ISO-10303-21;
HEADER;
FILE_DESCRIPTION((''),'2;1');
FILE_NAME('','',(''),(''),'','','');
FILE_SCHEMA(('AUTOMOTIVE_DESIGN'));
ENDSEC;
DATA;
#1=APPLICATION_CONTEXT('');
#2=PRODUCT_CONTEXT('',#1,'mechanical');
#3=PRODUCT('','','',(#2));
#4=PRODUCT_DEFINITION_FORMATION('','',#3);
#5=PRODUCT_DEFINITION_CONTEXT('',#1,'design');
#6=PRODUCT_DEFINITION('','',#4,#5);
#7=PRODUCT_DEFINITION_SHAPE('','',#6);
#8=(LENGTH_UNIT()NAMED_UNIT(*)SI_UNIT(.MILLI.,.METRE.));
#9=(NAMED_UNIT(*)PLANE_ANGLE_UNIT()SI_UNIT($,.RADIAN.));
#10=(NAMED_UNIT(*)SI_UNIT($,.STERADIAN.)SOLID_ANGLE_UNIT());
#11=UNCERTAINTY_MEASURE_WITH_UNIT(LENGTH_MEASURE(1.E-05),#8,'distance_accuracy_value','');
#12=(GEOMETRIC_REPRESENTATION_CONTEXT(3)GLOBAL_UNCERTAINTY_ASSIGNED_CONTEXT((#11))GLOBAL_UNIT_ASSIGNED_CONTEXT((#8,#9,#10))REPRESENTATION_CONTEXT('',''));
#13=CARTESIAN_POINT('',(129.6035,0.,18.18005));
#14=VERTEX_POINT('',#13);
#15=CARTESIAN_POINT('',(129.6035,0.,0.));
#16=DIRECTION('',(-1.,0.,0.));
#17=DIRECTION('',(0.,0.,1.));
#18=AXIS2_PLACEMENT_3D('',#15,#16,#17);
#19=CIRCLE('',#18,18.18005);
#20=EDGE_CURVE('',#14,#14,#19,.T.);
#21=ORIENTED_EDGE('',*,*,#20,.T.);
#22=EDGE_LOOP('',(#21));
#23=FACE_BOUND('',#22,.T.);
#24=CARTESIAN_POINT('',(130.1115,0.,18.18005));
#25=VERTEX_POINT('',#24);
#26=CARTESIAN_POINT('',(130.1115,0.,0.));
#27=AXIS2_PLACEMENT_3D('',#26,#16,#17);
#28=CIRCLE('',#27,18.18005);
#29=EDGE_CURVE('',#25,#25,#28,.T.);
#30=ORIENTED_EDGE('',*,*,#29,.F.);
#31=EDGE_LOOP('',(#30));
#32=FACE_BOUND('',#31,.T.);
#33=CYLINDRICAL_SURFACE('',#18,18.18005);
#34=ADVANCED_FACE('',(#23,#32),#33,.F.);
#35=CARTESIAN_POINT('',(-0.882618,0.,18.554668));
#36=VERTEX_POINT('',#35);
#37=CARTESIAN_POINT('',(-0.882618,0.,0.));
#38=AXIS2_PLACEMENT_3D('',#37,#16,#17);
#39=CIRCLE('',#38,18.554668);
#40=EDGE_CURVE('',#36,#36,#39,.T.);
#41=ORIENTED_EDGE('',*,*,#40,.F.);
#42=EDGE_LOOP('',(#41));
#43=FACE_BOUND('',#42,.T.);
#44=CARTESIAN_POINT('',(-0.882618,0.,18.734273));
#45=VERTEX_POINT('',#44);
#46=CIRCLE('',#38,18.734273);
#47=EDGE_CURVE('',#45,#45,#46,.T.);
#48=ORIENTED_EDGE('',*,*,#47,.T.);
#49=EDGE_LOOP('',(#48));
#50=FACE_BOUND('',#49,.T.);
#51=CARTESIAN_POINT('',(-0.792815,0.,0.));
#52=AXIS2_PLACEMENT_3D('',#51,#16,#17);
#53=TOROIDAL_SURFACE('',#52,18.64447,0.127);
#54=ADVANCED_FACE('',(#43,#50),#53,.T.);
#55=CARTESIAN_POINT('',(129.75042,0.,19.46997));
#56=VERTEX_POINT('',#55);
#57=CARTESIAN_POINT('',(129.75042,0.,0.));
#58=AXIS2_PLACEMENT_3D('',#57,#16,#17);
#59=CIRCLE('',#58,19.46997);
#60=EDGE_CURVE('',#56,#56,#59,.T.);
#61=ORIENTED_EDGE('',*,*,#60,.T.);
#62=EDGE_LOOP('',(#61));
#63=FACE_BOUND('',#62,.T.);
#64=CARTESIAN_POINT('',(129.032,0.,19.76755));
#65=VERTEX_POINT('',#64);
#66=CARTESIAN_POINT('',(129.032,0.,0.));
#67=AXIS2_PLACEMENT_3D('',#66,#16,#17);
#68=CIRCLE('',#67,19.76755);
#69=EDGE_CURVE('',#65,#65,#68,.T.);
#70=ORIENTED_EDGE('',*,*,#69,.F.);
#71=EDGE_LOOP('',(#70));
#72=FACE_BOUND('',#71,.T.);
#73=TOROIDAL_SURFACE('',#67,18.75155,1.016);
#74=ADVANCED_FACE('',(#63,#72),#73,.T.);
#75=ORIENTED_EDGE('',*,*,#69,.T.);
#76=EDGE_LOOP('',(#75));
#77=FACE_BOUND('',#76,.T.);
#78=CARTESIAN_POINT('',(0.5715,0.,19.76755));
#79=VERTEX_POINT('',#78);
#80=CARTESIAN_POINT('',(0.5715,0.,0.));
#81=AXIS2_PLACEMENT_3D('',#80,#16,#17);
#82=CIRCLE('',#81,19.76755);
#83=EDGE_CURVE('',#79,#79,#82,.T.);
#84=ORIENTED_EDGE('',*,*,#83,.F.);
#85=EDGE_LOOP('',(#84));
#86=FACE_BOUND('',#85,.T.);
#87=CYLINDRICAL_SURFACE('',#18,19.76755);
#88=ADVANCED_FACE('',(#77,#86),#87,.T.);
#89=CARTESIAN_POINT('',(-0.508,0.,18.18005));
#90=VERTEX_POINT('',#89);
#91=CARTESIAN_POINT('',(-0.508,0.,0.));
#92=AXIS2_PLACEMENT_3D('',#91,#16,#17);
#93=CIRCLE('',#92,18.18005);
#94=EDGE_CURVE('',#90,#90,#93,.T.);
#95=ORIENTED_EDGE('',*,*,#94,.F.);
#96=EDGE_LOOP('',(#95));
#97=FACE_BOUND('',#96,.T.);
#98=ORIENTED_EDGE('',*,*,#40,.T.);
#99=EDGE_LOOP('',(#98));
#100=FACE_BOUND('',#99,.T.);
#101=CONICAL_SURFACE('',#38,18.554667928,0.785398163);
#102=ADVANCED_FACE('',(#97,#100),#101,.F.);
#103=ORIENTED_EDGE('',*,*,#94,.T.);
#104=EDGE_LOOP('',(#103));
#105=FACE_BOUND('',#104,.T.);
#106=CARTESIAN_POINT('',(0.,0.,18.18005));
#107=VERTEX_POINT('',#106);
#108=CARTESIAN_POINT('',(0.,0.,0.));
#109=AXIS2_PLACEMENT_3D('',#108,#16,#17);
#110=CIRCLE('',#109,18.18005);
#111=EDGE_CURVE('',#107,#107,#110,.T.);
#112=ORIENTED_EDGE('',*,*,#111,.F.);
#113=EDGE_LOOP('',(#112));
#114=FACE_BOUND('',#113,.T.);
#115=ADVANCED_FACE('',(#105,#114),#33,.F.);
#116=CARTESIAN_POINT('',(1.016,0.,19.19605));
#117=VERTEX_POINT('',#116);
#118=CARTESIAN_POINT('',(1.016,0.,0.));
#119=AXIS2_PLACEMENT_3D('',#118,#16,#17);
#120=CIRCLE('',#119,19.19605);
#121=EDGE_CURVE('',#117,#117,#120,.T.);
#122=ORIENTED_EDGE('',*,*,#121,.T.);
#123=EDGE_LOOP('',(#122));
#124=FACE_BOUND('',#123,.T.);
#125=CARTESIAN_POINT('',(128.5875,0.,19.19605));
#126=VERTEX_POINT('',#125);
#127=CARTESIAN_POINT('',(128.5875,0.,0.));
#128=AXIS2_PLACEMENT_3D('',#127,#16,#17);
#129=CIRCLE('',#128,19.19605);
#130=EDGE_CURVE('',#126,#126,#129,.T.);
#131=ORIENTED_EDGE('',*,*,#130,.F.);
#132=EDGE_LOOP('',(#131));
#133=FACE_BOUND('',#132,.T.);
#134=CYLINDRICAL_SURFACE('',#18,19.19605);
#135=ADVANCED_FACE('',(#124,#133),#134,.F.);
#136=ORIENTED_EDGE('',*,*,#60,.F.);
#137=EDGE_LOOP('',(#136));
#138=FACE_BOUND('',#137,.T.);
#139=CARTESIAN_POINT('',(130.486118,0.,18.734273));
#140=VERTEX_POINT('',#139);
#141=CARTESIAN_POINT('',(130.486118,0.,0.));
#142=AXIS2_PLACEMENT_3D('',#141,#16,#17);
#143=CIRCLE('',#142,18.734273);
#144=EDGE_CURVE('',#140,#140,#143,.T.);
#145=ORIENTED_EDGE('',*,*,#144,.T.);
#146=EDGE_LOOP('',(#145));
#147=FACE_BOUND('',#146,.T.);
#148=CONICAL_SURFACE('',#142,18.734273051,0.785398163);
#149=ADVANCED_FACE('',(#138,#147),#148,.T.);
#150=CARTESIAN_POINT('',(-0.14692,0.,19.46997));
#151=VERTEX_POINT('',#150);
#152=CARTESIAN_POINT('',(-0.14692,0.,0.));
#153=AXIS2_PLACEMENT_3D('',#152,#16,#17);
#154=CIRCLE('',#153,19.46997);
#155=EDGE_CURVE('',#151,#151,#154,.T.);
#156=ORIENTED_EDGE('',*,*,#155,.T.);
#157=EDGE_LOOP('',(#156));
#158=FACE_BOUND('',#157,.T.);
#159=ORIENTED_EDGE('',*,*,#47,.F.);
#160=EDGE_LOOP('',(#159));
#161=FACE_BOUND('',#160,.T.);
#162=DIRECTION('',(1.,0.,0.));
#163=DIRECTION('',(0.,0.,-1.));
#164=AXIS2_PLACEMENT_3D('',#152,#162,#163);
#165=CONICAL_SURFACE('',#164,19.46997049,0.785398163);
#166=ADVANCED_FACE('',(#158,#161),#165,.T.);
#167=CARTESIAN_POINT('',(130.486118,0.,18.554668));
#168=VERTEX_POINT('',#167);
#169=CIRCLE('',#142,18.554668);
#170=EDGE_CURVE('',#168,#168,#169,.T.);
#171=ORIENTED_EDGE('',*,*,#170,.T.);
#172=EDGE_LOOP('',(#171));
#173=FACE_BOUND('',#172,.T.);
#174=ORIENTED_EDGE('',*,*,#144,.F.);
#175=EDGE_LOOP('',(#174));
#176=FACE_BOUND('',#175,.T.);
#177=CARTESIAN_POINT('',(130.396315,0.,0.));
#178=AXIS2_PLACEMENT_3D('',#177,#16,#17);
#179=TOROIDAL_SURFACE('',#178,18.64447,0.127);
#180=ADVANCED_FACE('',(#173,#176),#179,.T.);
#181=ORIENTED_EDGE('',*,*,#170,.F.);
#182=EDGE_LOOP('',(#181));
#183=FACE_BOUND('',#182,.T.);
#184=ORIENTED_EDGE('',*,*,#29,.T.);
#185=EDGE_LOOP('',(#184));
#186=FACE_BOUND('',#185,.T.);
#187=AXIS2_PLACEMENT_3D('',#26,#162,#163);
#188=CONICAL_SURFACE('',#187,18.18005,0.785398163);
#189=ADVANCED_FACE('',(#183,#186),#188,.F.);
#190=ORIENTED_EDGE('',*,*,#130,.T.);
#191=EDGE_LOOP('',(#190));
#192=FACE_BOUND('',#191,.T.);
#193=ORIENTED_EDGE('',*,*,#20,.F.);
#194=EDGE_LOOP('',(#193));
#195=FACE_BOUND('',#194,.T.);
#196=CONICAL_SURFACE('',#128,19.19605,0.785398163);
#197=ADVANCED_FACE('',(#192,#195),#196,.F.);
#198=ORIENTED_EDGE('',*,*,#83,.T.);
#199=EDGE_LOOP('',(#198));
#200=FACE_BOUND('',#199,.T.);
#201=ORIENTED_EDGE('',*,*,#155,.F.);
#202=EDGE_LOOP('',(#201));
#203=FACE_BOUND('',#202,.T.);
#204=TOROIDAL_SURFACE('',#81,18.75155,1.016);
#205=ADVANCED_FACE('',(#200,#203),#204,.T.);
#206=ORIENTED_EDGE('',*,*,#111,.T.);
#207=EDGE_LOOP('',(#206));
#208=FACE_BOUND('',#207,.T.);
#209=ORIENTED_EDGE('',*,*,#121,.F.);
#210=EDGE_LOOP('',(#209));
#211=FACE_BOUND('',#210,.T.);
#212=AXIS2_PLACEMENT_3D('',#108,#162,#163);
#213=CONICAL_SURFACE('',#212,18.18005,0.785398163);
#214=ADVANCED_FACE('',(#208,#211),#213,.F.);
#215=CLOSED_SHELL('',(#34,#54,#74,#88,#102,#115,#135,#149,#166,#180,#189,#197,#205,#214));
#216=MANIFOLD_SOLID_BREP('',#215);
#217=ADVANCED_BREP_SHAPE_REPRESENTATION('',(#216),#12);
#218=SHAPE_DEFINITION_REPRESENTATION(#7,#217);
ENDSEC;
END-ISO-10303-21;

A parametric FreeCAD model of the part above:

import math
import FreeCAD as App
import Part
import Sketcher

V = App.Vector
Q = App.Units.Quantity

doc = App.newDocument("Part")
body = doc.addObject("PartDesign::Body", "Body")

sketch1 = doc.addObject("Sketcher::SketchObject", "Sketch")
body.addObject(sketch1)
sketch1.AttachmentSupport = (doc.XY_Plane, [""])
sketch1.MapMode = "FlatFace"
sketch1.addGeometry([
    Part.LineSegment(V(-0.88, 18.55, 0), V(-0.51, 18.18, 0)),
    Part.LineSegment(V(-0.51, 18.18, 0), V(0, 18.18, 0)),
    Part.LineSegment(V(0, 18.18, 0), V(1.02, 19.2, 0)),
    Part.LineSegment(V(1.02, 19.2, 0), V(128.59, 19.2, 0)),
    Part.LineSegment(V(128.59, 19.2, 0), V(129.6, 18.18, 0)),
    Part.LineSegment(V(129.6, 18.18, 0), V(130.11, 18.18, 0)),
    Part.LineSegment(V(130.11, 18.18, 0), V(130.49, 18.55, 0)),
    Part.ArcOfCircle(Part.Circle(V(130.4, 18.64, 0), V(0, 0, 1), 0.13), math.radians(-45), math.radians(45)),
    Part.LineSegment(V(130.49, 18.73, 0), V(129.75, 19.47, 0)),
    Part.ArcOfCircle(Part.Circle(V(129.03, 18.75, 0), V(0, 0, 1), 1.02), math.radians(45), math.radians(90)),
    Part.LineSegment(V(129.03, 19.77, 0), V(0.57, 19.77, 0)),
    Part.ArcOfCircle(Part.Circle(V(0.57, 18.75, 0), V(0, 0, 1), 1.02), math.radians(90), math.radians(135)),
    Part.LineSegment(V(-0.15, 19.47, 0), V(-0.88, 18.73, 0)),
    Part.ArcOfCircle(Part.Circle(V(-0.79, 18.64, 0), V(0, 0, 1), 0.13), math.radians(135), math.radians(225)),
], False)
sketch1.addConstraint([
    Sketcher.Constraint("Coincident", 0, 2, 1, 1),
    Sketcher.Constraint("Coincident", 1, 2, 2, 1),
    Sketcher.Constraint("Coincident", 2, 2, 3, 1),
    Sketcher.Constraint("Coincident", 3, 2, 4, 1),
    Sketcher.Constraint("Coincident", 4, 2, 5, 1),
    Sketcher.Constraint("Coincident", 5, 2, 6, 1),
    Sketcher.Constraint("Tangent", 6, 2, 7, 1),
    Sketcher.Constraint("Tangent", 7, 2, 8, 1),
    Sketcher.Constraint("Tangent", 8, 2, 9, 1),
    Sketcher.Constraint("Tangent", 9, 2, 10, 1),
    Sketcher.Constraint("Tangent", 10, 2, 11, 1),
    Sketcher.Constraint("Tangent", 11, 2, 12, 1),
    Sketcher.Constraint("Tangent", 12, 2, 13, 1),
    Sketcher.Constraint("Tangent", 13, 2, 0, 1),
    Sketcher.Constraint("Horizontal", 1),
    Sketcher.Constraint("Horizontal", 3),
    Sketcher.Constraint("Horizontal", 5),
    Sketcher.Constraint("Horizontal", 10),
    Sketcher.Constraint("Equal", 9, 11),
    Sketcher.Constraint("Equal", 7, 13),
    Sketcher.Constraint("PointOnObject", 1, 2, -2),
    Sketcher.Constraint("Perpendicular", 0, 2),
    Sketcher.Constraint("Perpendicular", 2, 4),
    Sketcher.Constraint("Perpendicular", 4, 6),
    Sketcher.Constraint("Perpendicular", 6, 8),
    Sketcher.Constraint("Perpendicular", 8, 12),
    Sketcher.Constraint("Horizontal", 7, 3, 13, 3),
    Sketcher.Constraint("Horizontal", 1, 2, 4, 2),
    Sketcher.Constraint("Horizontal", 8, 2, 11, 2),
    Sketcher.Constraint("Equal", 1, 5),
    Sketcher.Constraint("Radius", 9, Q("0.04 in")),
    Sketcher.Constraint("Radius", 7, Q("0.005 in")),
    Sketcher.Constraint("DistanceX", 1, 1, 1, 2, Q("0.02 in")),
    Sketcher.Constraint("DistanceX", 0, 2, 9, 3, Q("5.1 in")),
    Sketcher.Constraint("DistanceX", -1, 1, 2, 2, Q("0.04 in")),
    Sketcher.Constraint("DistanceX", 3, 1, 3, 2, Q("5.0225 in")),
    Sketcher.Constraint("DistanceY", 4, 2, 9, 2, Q("0.0625 in")),
    Sketcher.Constraint("DistanceY", -1, 1, 7, 3, Q("18.64447 mm")),
])
revolution = doc.addObject("PartDesign::Revolution", "Revolution")
body.addObject(revolution)
revolution.Profile = sketch1
revolution.ReferenceAxis = (sketch1, ["H_Axis"])
revolution.Angle = 360

doc.recompute()
